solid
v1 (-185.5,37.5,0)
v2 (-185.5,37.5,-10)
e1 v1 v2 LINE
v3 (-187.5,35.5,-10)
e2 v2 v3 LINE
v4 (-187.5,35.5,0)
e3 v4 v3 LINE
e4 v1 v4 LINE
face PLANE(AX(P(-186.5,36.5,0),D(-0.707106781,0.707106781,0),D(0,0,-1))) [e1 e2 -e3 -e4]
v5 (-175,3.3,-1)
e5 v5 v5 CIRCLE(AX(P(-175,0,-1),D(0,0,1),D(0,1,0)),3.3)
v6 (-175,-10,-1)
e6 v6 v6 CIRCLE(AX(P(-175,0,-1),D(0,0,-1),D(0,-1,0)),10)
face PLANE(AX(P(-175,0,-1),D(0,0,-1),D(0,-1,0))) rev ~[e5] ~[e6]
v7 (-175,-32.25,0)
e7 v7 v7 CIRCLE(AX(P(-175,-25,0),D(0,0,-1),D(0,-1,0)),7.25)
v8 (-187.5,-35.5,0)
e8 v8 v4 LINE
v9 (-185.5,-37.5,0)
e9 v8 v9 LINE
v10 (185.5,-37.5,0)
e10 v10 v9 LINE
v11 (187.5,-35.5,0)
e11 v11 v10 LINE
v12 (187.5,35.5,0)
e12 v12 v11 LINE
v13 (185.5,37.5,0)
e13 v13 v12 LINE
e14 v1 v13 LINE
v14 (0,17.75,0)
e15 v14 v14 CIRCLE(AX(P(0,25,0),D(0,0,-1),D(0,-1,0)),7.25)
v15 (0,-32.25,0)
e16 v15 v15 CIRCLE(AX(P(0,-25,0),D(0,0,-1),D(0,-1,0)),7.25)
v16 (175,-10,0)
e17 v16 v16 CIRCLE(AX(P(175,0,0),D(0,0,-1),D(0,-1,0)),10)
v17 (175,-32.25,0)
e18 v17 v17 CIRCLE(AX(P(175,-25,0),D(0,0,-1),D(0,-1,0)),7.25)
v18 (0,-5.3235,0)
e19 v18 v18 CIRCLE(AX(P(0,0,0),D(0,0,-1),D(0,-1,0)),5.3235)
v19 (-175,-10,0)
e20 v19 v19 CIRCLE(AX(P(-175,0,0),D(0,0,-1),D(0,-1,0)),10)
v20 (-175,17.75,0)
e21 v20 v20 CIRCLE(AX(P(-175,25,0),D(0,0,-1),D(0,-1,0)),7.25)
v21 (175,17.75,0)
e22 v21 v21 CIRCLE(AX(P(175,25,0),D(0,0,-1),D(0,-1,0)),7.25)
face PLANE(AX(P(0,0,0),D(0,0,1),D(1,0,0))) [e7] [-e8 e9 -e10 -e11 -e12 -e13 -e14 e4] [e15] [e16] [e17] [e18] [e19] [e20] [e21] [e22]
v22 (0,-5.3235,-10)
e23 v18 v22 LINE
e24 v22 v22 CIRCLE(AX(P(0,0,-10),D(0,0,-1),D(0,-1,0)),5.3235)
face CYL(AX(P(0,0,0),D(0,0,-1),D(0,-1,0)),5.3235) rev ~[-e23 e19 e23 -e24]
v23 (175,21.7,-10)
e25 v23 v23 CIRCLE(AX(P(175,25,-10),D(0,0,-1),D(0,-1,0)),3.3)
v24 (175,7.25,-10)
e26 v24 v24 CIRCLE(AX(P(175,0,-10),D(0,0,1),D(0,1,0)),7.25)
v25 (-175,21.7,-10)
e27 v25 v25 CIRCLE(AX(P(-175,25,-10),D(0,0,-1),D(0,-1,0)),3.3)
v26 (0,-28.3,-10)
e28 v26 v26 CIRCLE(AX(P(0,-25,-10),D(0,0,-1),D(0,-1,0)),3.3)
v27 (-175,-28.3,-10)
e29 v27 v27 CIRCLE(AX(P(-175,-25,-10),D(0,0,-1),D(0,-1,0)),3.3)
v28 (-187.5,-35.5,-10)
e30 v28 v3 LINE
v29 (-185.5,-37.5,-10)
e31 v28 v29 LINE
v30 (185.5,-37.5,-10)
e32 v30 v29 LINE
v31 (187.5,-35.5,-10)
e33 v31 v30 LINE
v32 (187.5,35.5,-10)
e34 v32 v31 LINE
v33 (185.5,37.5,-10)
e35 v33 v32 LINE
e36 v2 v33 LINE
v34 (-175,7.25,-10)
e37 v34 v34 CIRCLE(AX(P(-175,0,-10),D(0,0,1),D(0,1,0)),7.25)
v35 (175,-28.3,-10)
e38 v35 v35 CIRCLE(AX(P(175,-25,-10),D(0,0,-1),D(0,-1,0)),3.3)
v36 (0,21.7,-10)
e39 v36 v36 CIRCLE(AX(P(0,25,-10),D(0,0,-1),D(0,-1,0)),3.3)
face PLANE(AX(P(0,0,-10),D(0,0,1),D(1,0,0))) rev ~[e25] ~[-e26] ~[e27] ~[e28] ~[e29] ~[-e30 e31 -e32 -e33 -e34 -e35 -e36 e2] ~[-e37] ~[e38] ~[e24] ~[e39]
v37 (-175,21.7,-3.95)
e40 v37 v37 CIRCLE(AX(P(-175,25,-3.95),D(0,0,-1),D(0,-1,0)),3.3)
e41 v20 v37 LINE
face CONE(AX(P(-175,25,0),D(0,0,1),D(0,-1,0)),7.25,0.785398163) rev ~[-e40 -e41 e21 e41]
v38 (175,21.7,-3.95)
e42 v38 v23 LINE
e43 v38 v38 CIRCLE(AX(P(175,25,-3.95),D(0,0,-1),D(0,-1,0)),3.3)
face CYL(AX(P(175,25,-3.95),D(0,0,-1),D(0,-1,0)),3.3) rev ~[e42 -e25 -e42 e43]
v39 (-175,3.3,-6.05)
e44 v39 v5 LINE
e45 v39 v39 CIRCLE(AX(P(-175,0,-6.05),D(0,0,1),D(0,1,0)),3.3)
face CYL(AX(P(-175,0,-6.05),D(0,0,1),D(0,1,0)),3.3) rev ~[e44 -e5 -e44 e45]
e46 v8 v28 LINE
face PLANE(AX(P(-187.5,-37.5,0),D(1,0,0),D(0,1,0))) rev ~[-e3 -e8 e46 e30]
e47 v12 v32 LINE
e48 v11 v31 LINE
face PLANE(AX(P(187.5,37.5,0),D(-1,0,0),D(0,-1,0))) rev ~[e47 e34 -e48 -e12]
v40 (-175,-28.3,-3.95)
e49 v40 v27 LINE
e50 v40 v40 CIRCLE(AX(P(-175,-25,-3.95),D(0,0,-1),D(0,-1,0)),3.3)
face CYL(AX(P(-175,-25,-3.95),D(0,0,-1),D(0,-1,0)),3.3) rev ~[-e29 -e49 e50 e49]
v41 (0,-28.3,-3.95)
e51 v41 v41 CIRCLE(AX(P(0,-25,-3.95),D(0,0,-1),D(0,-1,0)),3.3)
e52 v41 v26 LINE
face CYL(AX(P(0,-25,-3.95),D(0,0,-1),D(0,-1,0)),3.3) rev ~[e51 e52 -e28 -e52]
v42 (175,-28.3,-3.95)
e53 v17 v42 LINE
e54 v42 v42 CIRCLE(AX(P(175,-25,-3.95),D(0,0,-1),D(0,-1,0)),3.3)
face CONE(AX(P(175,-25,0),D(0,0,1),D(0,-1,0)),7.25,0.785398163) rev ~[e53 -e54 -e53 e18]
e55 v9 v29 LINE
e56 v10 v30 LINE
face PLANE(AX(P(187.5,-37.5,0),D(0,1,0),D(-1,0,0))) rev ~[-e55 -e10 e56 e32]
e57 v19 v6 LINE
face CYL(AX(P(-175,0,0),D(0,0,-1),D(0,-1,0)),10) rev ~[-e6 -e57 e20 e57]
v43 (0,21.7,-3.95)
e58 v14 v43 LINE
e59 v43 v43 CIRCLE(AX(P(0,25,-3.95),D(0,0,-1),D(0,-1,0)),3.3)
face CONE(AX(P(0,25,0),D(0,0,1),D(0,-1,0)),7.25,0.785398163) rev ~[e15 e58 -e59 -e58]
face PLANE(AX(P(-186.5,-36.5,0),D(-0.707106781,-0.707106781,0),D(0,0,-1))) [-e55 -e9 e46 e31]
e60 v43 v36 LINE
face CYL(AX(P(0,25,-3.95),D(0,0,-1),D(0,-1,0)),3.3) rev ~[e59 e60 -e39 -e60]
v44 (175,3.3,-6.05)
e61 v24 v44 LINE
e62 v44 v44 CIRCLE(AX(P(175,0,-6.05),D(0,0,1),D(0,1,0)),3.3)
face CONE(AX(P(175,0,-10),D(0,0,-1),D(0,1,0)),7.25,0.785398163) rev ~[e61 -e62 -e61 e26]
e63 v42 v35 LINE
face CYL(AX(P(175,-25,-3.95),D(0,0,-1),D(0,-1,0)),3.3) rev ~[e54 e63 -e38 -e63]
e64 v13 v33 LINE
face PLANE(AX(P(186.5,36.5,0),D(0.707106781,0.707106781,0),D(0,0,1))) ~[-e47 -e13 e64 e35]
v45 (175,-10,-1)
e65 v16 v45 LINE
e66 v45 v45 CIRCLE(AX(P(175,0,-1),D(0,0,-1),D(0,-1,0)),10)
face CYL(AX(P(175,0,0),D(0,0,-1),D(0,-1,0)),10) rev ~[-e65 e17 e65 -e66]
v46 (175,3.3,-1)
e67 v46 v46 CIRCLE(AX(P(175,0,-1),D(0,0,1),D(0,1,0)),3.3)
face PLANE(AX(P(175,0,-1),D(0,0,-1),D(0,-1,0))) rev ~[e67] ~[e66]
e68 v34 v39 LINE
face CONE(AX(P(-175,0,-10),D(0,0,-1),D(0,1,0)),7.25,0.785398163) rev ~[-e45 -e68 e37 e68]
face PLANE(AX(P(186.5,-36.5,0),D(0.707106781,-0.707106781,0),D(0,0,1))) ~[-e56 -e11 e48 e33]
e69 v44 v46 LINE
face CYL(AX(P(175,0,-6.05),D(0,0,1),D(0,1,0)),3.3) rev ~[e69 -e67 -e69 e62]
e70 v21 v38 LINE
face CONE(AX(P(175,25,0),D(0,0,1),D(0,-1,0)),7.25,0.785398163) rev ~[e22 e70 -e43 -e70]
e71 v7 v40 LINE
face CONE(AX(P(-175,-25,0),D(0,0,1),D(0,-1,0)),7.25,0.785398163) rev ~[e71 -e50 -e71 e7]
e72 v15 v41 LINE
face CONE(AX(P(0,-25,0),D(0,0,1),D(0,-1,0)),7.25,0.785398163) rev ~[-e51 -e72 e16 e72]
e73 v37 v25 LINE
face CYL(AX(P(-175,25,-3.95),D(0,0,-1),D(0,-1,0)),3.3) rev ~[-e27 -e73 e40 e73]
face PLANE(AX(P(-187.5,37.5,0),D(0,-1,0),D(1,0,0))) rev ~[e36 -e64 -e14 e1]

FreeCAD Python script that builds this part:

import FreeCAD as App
import Part
import Sketcher


def edges_at(feature, points):
    """Names of the edges that pass closest to the given points."""
    edges = feature.Shape.Edges
    near = lambda p: min(range(len(edges)), key=lambda i: edges[i].distToShape(Part.Vertex(*p))[0])
    return sorted({f"Edge{near(p) + 1}" for p in points})

doc = App.newDocument("Part")
params = doc.addObject("Spreadsheet::Sheet", "Params")
for row, (alias, value) in enumerate([
    ("sketch1_width", "375 mm"),
    ("sketch1_height", "75 mm"),
    ("pad1_length", "10 mm"),
    ("sketch2_diameter", "6.6 mm"),
    ("hole_diameter", "6.6 mm"),
    ("hole_csink_diameter", "14.5 mm"),
    ("hole2_diameter", "10.647 mm"),
    ("sketch4_diameter", "20 mm"),
    ("hole3_diameter", "20 mm"),
    ("hole3_depth", "1 mm"),
    ("sketch5_diameter", "6.6 mm"),
    ("hole4_diameter", "6.6 mm"),
    ("hole4_csink_diameter", "14.5 mm"),
    ("chamfer_size", "2 mm"),
], start=1):
    params.set(f"A{row}", alias)
    params.set(f"B{row}", "=" + value)
    params.setAlias(f"B{row}", alias)

body = doc.addObject("PartDesign::Body", "Body")

# Sketch on XY plane
sketch1 = body.newObject("Sketcher::SketchObject", "Sketch")
sketch1.AttachmentSupport = (doc.getObject("XY_Plane"), [""])
sketch1.MapMode = "FlatFace"
sketch1.addGeometry(Part.LineSegment(App.Vector(188, 38, 0), App.Vector(-188, 38, 0)), False)
sketch1.addGeometry(Part.LineSegment(App.Vector(-188, 38, 0), App.Vector(-188, -38, 0)), False)
sketch1.addGeometry(Part.LineSegment(App.Vector(-188, -38, 0), App.Vector(188, -38, 0)), False)
sketch1.addGeometry(Part.LineSegment(App.Vector(188, -38, 0), App.Vector(188, 38, 0)), False)
sketch1.addConstraint(Sketcher.Constraint("Coincident", 0, 2, 1, 1))
sketch1.addConstraint(Sketcher.Constraint("Coincident", 1, 2, 2, 1))
sketch1.addConstraint(Sketcher.Constraint("Coincident", 2, 2, 3, 1))
sketch1.addConstraint(Sketcher.Constraint("Coincident", 3, 2, 0, 1))
sketch1.addConstraint(Sketcher.Constraint("Horizontal", 0))
sketch1.addConstraint(Sketcher.Constraint("Vertical", 1))
sketch1.addConstraint(Sketcher.Constraint("Horizontal", 2))
sketch1.addConstraint(Sketcher.Constraint("Vertical", 3))
sketch1.addConstraint(Sketcher.Constraint("Symmetric", 0, 2, 2, 2, -1, 1))
sketch1.addConstraint(Sketcher.Constraint("DistanceX", 0, 2, 0, 1, 375.0))
sketch1.addConstraint(Sketcher.Constraint("DistanceY", 1, 2, 1, 1, 75.0))
sketch1.setExpression("Constraints[9]", "Params.sketch1_width")
sketch1.setExpression("Constraints[10]", "Params.sketch1_height")
pad1 = body.newObject("PartDesign::Pad", "Pad")
pad1.Profile = sketch1
pad1.setExpression("Length", "Params.pad1_length")
pad1.Reversed = True

# Sketch on XY plane
sketch2 = body.newObject("Sketcher::SketchObject", "Sketch001")
sketch2.AttachmentSupport = (doc.getObject("XY_Plane"), [""])
sketch2.MapMode = "FlatFace"
sketch2.addGeometry(Part.Circle(App.Vector(-175, 25, 0), App.Vector(0, 0, 1), 3.3), False)
sketch2.addGeometry(Part.Circle(App.Vector(175, 25, 0), App.Vector(0, 0, 1), 3.3), False)
sketch2.addGeometry(Part.Circle(App.Vector(-175, -25, 0), App.Vector(0, 0, 1), 3.3), False)
sketch2.addGeometry(Part.Circle(App.Vector(175, -25, 0), App.Vector(0, 0, 1), 3.3), False)
sketch2.addGeometry(Part.Circle(App.Vector(0, 25, 0), App.Vector(0, 0, 1), 3.3), False)
sketch2.addGeometry(Part.Circle(App.Vector(0, -25, 0), App.Vector(0, 0, 1), 3.3), False)
sketch2.addConstraint(Sketcher.Constraint("Equal", 0, 1))
sketch2.addConstraint(Sketcher.Constraint("Equal", 1, 2))
sketch2.addConstraint(Sketcher.Constraint("Equal", 2, 3))
sketch2.addConstraint(Sketcher.Constraint("Equal", 3, 4))
sketch2.addConstraint(Sketcher.Constraint("Equal", 4, 5))
sketch2.addConstraint(Sketcher.Constraint("Symmetric", 1, 3, 2, 3, -1, 1))
sketch2.addConstraint(Sketcher.Constraint("Symmetric", 0, 3, 3, 3, -1, 1))
sketch2.addConstraint(Sketcher.Constraint("Symmetric", 4, 3, 5, 3, -1, 1))
sketch2.addConstraint(Sketcher.Constraint("Symmetric", 0, 3, 1, 3, -2))
sketch2.addConstraint(Sketcher.Constraint("PointOnObject", 4, 3, -2))
sketch2.addConstraint(Sketcher.Constraint("Horizontal", 1, 3, 4, 3))
sketch2.addConstraint(Sketcher.Constraint("Diameter", 0, 6.6))
sketch2.addConstraint(Sketcher.Constraint("DistanceX", 0, 3, -1, 1, 175.0))
sketch2.addConstraint(Sketcher.Constraint("DistanceY", -1, 1, 0, 3, 25.0))
sketch2.setExpression("Constraints[11]", "Params.sketch2_diameter")
doc.recompute()
hole = body.newObject("PartDesign::Hole", "Hole")
hole.Profile = sketch2
hole.ThreadType = "None"
hole.setExpression("Diameter", "Params.hole_diameter")
hole.DepthType = "ThroughAll"
hole.HoleCutType = "Countersink"
hole.setExpression("HoleCutDiameter", "Params.hole_csink_diameter")
hole.HoleCutCountersinkAngle = 90

# Sketch on XY plane
sketch3 = body.newObject("Sketcher::SketchObject", "Sketch002")
sketch3.AttachmentSupport = (doc.getObject("XY_Plane"), [""])
sketch3.MapMode = "FlatFace"
sketch3.addGeometry(Part.Circle(App.Vector(0, 0, 0), App.Vector(0, 0, 1), 5), False)
sketch3.addConstraint(Sketcher.Constraint("Coincident", 0, 3, -1, 1))
sketch3.addConstraint(Sketcher.Constraint("Diameter", 0, 10.647))
doc.recompute()
hole2 = body.newObject("PartDesign::Hole", "Hole001")
hole2.Profile = sketch3
hole2.ThreadType = "None"
hole2.setExpression("Diameter", "Params.hole2_diameter")
hole2.DepthType = "ThroughAll"

# Sketch on XY plane
sketch4 = body.newObject("Sketcher::SketchObject", "Sketch003")
sketch4.AttachmentSupport = (doc.getObject("XY_Plane"), [""])
sketch4.MapMode = "FlatFace"
sketch4.addGeometry(Part.Circle(App.Vector(-175, 0, 0), App.Vector(0, 0, 1), 10), False)
sketch4.addGeometry(Part.Circle(App.Vector(175, 0, 0), App.Vector(0, 0, 1), 10), False)
sketch4.addConstraint(Sketcher.Constraint("Equal", 0, 1))
sketch4.addConstraint(Sketcher.Constraint("Symmetric", 0, 3, 1, 3, -1, 1))
sketch4.addConstraint(Sketcher.Constraint("PointOnObject", 0, 3, -1))
sketch4.addConstraint(Sketcher.Constraint("Diameter", 0, 20.0))
sketch4.addConstraint(Sketcher.Constraint("DistanceX", 0, 3, -1, 1, 175.0))
sketch4.setExpression("Constraints[3]", "Params.sketch4_diameter")
doc.recompute()
hole3 = body.newObject("PartDesign::Hole", "Hole002")
hole3.Profile = sketch4
hole3.ThreadType = "None"
hole3.setExpression("Diameter", "Params.hole3_diameter")
hole3.DepthType = "Dimension"
hole3.setExpression("Depth", "Params.hole3_depth")
hole3.DrillPoint = "Flat"

# Sketch on XY plane
sketch5 = body.newObject("Sketcher::SketchObject", "Sketch004")
sketch5.AttachmentSupport = (doc.getObject("XY_Plane"), [""])
sketch5.MapMode = "FlatFace"
sketch5.AttachmentOffset = App.Placement(App.Vector(0, 0, -10), App.Rotation())
sketch5.addGeometry(Part.Circle(App.Vector(-175, 0, 0), App.Vector(0, 0, 1), 3.3), False)
sketch5.addGeometry(Part.Circle(App.Vector(175, 0, 0), App.Vector(0, 0, 1), 3.3), False)
sketch5.addConstraint(Sketcher.Constraint("Equal", 0, 1))
sketch5.addConstraint(Sketcher.Constraint("Symmetric", 0, 3, 1, 3, -1, 1))
sketch5.addConstraint(Sketcher.Constraint("PointOnObject", 0, 3, -1))
sketch5.addConstraint(Sketcher.Constraint("Diameter", 0, 6.6))
sketch5.addConstraint(Sketcher.Constraint("DistanceX", 0, 3, -1, 1, 175.0))
sketch5.setExpression("Constraints[3]", "Params.sketch5_diameter")
doc.recompute()
hole4 = body.newObject("PartDesign::Hole", "Hole003")
hole4.Profile = sketch5
hole4.ThreadType = "None"
hole4.setExpression("Diameter", "Params.hole4_diameter")
hole4.DepthType = "ThroughAll"
hole4.HoleCutType = "Countersink"
hole4.setExpression("HoleCutDiameter", "Params.hole4_csink_diameter")
hole4.HoleCutCountersinkAngle = 90
hole4.Reversed = True
doc.recompute()

chamfer = body.newObject("PartDesign::Chamfer", "Chamfer")
chamfer.Base = (hole4, edges_at(hole4, [
    (-187.5, 37.5, -5),
    (-187.5, -37.5, -5),
    (187.5, 37.5, -5),
    (187.5, -37.5, -5),
]))
chamfer.setExpression("Size", "Params.chamfer_size")

doc.recompute()
